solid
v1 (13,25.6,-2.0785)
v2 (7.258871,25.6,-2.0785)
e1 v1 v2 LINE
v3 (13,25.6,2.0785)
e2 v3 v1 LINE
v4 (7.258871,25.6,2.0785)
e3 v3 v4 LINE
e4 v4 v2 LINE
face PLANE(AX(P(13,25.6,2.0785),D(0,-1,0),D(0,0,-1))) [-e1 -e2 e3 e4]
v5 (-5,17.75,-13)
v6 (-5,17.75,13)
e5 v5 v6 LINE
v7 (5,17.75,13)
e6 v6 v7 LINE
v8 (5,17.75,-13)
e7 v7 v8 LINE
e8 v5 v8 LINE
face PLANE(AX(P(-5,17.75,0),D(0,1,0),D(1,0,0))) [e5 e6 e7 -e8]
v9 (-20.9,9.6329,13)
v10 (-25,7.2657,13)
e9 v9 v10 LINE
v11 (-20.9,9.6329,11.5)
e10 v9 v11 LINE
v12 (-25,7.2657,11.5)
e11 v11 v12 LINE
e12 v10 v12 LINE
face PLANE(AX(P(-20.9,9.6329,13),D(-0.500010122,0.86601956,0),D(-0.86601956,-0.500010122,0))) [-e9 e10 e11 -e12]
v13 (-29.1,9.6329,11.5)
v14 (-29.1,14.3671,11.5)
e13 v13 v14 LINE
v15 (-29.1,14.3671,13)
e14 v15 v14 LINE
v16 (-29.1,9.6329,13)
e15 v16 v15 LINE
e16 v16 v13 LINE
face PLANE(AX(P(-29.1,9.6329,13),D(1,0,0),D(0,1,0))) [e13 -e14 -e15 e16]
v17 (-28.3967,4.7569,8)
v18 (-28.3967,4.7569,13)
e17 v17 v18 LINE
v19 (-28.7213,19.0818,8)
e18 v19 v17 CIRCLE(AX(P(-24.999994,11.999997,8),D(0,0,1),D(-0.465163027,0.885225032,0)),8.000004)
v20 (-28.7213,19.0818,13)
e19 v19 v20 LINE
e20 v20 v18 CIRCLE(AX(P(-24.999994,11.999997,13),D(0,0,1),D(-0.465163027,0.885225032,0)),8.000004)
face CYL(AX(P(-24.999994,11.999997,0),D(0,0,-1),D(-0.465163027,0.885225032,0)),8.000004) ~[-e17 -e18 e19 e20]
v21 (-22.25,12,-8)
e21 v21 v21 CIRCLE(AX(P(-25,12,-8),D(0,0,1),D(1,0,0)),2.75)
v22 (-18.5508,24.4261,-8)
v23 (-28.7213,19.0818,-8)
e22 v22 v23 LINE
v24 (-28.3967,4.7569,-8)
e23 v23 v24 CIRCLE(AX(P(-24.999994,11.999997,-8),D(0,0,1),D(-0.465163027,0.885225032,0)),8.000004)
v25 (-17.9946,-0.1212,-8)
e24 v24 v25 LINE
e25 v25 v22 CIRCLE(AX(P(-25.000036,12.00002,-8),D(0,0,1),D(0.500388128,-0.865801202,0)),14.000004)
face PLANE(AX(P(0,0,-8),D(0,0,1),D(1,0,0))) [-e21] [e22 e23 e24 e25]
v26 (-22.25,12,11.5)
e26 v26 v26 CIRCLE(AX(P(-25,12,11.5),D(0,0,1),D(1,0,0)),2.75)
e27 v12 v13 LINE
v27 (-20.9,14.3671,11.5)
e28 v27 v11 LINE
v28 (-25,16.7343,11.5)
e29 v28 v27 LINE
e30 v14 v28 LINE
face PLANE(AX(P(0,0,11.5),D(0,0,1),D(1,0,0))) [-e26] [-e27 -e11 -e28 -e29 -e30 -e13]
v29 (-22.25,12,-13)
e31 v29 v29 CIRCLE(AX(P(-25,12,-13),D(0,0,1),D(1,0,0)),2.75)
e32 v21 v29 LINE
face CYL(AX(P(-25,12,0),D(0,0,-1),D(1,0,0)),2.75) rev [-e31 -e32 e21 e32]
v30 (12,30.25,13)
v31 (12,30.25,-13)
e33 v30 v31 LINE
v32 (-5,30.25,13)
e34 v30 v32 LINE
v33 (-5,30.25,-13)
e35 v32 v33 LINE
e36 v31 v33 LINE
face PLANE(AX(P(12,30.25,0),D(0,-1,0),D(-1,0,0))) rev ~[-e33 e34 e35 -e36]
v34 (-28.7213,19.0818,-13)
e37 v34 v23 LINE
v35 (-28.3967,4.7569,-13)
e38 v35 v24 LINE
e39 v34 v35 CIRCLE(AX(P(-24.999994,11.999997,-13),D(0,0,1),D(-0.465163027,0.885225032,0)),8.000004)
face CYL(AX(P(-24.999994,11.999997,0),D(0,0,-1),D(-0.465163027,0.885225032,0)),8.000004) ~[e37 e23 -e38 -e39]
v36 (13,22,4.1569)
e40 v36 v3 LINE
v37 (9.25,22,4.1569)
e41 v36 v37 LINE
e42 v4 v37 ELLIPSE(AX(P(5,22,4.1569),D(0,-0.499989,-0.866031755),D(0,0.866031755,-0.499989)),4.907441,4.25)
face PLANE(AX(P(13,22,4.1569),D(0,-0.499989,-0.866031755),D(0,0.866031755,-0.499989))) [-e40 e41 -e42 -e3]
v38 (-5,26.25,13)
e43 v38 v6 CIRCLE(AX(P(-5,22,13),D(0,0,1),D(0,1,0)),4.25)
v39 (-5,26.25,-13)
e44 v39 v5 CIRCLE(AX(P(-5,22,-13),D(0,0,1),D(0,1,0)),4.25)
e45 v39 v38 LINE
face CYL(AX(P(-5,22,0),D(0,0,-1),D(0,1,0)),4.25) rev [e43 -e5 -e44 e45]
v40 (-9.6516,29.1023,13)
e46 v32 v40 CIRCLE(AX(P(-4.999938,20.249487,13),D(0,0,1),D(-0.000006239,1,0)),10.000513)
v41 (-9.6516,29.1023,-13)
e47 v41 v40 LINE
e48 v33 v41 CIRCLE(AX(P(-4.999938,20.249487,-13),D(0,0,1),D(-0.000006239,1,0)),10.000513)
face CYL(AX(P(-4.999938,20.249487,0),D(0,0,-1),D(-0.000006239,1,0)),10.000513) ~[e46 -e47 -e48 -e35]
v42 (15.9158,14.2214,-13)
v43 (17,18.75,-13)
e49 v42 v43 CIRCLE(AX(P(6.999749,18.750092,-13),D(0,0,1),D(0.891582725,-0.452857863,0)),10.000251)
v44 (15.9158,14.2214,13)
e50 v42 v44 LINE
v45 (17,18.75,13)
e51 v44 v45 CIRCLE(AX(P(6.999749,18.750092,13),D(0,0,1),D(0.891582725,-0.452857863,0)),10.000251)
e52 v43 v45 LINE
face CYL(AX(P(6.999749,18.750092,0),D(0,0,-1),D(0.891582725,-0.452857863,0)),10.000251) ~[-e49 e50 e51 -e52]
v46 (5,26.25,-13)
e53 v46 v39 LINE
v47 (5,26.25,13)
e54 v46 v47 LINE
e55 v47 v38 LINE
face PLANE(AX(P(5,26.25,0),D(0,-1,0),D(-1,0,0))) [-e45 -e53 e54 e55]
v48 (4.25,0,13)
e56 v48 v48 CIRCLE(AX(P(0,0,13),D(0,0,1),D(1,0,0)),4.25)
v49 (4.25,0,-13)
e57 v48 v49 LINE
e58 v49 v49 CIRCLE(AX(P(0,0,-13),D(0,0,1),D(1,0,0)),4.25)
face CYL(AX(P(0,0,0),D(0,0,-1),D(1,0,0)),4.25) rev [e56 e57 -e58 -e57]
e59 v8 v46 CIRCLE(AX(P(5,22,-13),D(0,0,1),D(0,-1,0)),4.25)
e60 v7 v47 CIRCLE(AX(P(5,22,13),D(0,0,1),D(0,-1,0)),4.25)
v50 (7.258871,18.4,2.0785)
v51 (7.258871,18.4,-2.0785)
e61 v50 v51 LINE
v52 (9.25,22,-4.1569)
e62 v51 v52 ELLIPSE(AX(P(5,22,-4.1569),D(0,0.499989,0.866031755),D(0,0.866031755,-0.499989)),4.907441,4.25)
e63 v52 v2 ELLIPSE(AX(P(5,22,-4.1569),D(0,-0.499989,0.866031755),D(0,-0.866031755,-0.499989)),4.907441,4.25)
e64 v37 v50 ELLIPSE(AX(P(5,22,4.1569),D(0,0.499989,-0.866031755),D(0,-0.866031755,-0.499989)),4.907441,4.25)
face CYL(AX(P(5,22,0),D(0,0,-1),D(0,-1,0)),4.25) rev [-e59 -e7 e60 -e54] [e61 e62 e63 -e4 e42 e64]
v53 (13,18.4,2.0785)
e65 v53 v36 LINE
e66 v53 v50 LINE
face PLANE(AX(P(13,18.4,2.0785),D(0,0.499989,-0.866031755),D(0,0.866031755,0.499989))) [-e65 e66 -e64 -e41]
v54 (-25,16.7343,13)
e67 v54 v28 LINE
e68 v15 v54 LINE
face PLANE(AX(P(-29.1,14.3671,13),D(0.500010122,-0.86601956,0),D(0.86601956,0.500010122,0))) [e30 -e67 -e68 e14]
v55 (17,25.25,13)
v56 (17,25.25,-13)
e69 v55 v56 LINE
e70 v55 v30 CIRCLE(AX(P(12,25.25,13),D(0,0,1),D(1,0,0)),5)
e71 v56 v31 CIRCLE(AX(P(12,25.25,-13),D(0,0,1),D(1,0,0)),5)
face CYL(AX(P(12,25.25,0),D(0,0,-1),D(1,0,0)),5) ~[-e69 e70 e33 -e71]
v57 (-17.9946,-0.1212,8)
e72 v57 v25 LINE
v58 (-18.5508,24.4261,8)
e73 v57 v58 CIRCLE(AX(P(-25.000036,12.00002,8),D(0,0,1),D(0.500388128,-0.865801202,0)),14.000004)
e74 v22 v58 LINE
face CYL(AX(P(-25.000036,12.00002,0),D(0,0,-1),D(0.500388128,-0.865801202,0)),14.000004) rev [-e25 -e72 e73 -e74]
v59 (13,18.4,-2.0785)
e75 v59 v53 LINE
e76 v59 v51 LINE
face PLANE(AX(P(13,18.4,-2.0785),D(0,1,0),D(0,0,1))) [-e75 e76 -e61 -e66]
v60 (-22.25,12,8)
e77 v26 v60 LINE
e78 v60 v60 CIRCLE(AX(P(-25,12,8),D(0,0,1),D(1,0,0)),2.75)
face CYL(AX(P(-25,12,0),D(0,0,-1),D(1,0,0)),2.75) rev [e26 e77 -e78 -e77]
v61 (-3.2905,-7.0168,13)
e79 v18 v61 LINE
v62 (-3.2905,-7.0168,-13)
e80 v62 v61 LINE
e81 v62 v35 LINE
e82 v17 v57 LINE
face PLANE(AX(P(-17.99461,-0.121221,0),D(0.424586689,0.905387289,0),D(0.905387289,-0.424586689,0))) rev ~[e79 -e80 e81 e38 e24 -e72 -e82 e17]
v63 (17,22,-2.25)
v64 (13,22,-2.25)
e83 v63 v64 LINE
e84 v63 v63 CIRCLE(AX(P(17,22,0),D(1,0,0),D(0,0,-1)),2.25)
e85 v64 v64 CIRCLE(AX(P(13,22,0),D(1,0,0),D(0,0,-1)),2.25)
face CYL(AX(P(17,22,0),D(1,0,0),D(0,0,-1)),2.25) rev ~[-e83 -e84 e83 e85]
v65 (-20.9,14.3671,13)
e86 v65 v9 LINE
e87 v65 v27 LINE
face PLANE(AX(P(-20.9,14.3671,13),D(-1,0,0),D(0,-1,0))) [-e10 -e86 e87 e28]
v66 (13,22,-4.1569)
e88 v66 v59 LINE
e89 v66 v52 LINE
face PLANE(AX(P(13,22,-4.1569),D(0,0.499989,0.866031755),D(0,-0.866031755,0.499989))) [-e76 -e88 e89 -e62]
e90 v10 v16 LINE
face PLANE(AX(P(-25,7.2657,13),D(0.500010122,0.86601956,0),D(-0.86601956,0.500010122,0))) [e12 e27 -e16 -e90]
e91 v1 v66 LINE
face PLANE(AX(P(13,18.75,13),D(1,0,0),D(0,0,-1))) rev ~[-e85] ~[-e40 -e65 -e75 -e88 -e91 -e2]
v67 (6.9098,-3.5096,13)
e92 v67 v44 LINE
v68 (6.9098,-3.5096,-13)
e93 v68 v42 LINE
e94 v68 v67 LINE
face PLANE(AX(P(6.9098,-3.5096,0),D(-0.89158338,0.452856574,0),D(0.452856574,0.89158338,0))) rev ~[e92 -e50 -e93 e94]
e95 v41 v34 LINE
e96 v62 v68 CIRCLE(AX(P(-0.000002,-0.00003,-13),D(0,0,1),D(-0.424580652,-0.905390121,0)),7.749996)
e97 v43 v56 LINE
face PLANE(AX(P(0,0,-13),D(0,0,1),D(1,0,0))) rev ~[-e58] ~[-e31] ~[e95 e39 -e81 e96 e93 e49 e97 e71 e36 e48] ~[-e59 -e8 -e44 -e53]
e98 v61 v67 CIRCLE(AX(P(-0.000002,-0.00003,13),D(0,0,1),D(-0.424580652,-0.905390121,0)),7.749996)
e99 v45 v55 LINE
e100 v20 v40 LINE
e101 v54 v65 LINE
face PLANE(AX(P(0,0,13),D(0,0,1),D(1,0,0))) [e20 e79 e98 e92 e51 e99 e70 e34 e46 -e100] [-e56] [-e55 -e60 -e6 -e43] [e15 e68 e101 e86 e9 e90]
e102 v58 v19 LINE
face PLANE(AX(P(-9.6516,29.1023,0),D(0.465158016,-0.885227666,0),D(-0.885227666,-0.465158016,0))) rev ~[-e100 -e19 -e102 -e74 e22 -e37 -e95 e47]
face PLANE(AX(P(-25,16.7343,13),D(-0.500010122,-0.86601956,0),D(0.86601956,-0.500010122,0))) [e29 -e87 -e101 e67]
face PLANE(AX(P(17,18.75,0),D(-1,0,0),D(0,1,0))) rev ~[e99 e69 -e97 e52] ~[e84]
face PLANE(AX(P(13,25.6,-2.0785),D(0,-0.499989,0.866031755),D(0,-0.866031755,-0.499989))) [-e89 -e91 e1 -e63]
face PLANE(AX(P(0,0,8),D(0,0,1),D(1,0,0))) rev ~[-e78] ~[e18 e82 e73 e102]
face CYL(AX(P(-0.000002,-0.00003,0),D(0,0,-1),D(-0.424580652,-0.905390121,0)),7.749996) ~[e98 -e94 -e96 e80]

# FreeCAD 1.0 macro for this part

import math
import FreeCAD as App
import Part
import Sketcher
Q = App.Units.Quantity

doc = App.newDocument("Part")
body = doc.addObject("PartDesign::Body", "Body")

# Sketch on XY plane
sketch1 = body.newObject("Sketcher::SketchObject", "Sketch")
sketch1.AttachmentSupport = (doc.getObject("XY_Plane"), [""])
sketch1.MapMode = "FlatFace"
sketch1.addGeometry([
    Part.ArcOfCircle(Part.Circle(App.Vector(-5, 20.2, 0), App.Vector(0, 0, 1), 10), math.radians(90), math.radians(118)),  # 0
    Part.LineSegment(App.Vector(-9.7, 29.1, 0), App.Vector(-28.7, 19.1, 0)),  # 1
    Part.ArcOfCircle(Part.Circle(App.Vector(-25, 12, 0), App.Vector(0, 0, 1), 8), math.radians(118), math.radians(245)),  # 2
    Part.LineSegment(App.Vector(-28.4, 4.8, 0), App.Vector(-3.3, -7, 0)),  # 3
    Part.ArcOfCircle(Part.Circle(App.Vector(0, 0, 0), App.Vector(0, 0, 1), 7.8), math.radians(-115), math.radians(-27)),  # 4
    Part.LineSegment(App.Vector(6.9, -3.5, 0), App.Vector(15.9, 14.2, 0)),  # 5
    Part.ArcOfCircle(Part.Circle(App.Vector(7, 18.8, 0), App.Vector(0, 0, 1), 10), math.radians(-27), math.radians(0)),  # 6
    Part.LineSegment(App.Vector(17, 18.8, 0), App.Vector(17, 25.2, 0)),  # 7
    Part.ArcOfCircle(Part.Circle(App.Vector(12, 25.2, 0), App.Vector(0, 0, 1), 5), math.radians(0), math.radians(90)),  # 8
    Part.LineSegment(App.Vector(12, 30.2, 0), App.Vector(-5, 30.2, 0)),  # 9
    Part.Circle(App.Vector(0, 0, 0), App.Vector(0, 0, 1), 4.2),  # 10
    Part.LineSegment(App.Vector(5, 17.8, 0), App.Vector(-5, 17.8, 0)),  # 11
    Part.ArcOfCircle(Part.Circle(App.Vector(-5, 22, 0), App.Vector(0, 0, 1), 4.2), math.radians(90), math.radians(270)),  # 12
    Part.LineSegment(App.Vector(-5, 26.2, 0), App.Vector(5, 26.2, 0)),  # 13
    Part.ArcOfCircle(Part.Circle(App.Vector(5, 22, 0), App.Vector(0, 0, 1), 4.2), math.radians(-90), math.radians(90)),  # 14
    Part.Circle(App.Vector(-25, 12, 0), App.Vector(0, 0, 1), 2.8),  # 15
], False)
sketch1.addConstraint([
    Sketcher.Constraint("Tangent", 0, 2, 1, 1),
    Sketcher.Constraint("Tangent", 1, 2, 2, 1),
    Sketcher.Constraint("Tangent", 2, 2, 3, 1),
    Sketcher.Constraint("Tangent", 3, 2, 4, 1),
    Sketcher.Constraint("Tangent", 4, 2, 5, 1),
    Sketcher.Constraint("Tangent", 5, 2, 6, 1),
    Sketcher.Constraint("Tangent", 6, 2, 7, 1),
    Sketcher.Constraint("Tangent", 7, 2, 8, 1),
    Sketcher.Constraint("Tangent", 8, 2, 9, 1),
    Sketcher.Constraint("Tangent", 9, 2, 0, 1),
    Sketcher.Constraint("Tangent", 11, 2, 12, 2),
    Sketcher.Constraint("Tangent", 12, 1, 13, 1),
    Sketcher.Constraint("Tangent", 13, 2, 14, 2),
    Sketcher.Constraint("Tangent", 14, 1, 11, 1),
    Sketcher.Constraint("Vertical", 7),
    Sketcher.Constraint("Horizontal", 9),
    Sketcher.Constraint("Horizontal", 11),
    Sketcher.Constraint("Horizontal", 13),
    Sketcher.Constraint("Coincident", 4, 3, -1, 1),
    Sketcher.Constraint("Coincident", 10, 3, -1, 1),
    Sketcher.Constraint("Coincident", 15, 3, 2, 3),
    Sketcher.Constraint("Equal", 0, 6),
    Sketcher.Constraint("Equal", 10, 12),
    Sketcher.Constraint("Vertical", 0, 3, 12, 3),
    Sketcher.Constraint("Radius", 0, 10.0),
    Sketcher.Constraint("Radius", 2, 8.0),
    Sketcher.Constraint("Radius", 8, 5.0),
    Sketcher.Constraint("Diameter", 10, 8.5),
    Sketcher.Constraint("Diameter", 15, 5.5),
    Sketcher.Constraint("DistanceX", 11, 2, 11, 1, 10.0),
    Sketcher.Constraint("Radius", 4, 7.75),
    Sketcher.Constraint("DistanceX", 0, 3, -1, 1, 5.0),
    Sketcher.Constraint("DistanceY", -1, 1, 2, 3, 12.0),
    Sketcher.Constraint("DistanceX", -1, 1, 8, 3, 12.0),
    Sketcher.Constraint("DistanceY", -1, 1, 12, 3, 22.0),
    Sketcher.Constraint("DistanceX", 2, 3, 0, 3, 20.0),
    Sketcher.Constraint("DistanceY", 12, 1, 9, 2, 4.0),
    Sketcher.Constraint("DistanceY", 7, 1, 7, 2, 6.5),
])
pad1 = body.newObject("PartDesign::Pad", "Pad")
pad1.Profile = sketch1
pad1.Length = 26
pad1.Midplane = True

# Sketch on XY plane
sketch2 = body.newObject("Sketcher::SketchObject", "Sketch001")
sketch2.AttachmentSupport = (doc.getObject("XY_Plane"), [""])
sketch2.MapMode = "FlatFace"
sketch2.addGeometry([
    Part.ArcOfCircle(Part.Circle(App.Vector(-25, 12, 0), App.Vector(0, 0, 1), 14), math.radians(-60), math.radians(63)),  # 0
    Part.LineSegment(App.Vector(-18.6, 24.4, 0), App.Vector(-28.7, 19.1, 0)),  # 1
    Part.ArcOfCircle(Part.Circle(App.Vector(-25, 12, 0), App.Vector(0, 0, 1), 8), math.radians(118), math.radians(245)),  # 2
    Part.LineSegment(App.Vector(-28.4, 4.8, 0), App.Vector(-18, -0.1, 0)),  # 3
    Part.Circle(App.Vector(-25, 12, 0), App.Vector(0, 0, 1), 2.8),  # 4
], False)
sketch2.addConstraint([
    Sketcher.Constraint("Coincident", 0, 2, 1, 1),
    Sketcher.Constraint("Tangent", 1, 2, 2, 1),
    Sketcher.Constraint("Tangent", 2, 2, 3, 1),
    Sketcher.Constraint("Coincident", 3, 2, 0, 1),
    Sketcher.Constraint("Coincident", 2, 3, 0, 3),
    Sketcher.Constraint("Coincident", 4, 3, 0, 3),
    Sketcher.Constraint("Radius", 0, 14.0),
    Sketcher.Constraint("Radius", 2, 8.0),
    Sketcher.Constraint("Diameter", 4, 5.5),
    Sketcher.Constraint("DistanceY", -1, 1, 0, 3, 12.0),
    Sketcher.Constraint("DistanceX", 0, 3, -1, 1, 25.0),
    Sketcher.Constraint("Angle", 1, Q("-152.2796 deg")),
    Sketcher.Constraint("DistanceY", -1, 1, 2, 2, 4.757),
])
pocket1 = body.newObject("PartDesign::Pocket", "Pocket")
pocket1.Profile = sketch2
pocket1.Length = 16
pocket1.Midplane = True

# Sketch on XY plane
sketch3 = body.newObject("Sketcher::SketchObject", "Sketch002")
sketch3.AttachmentSupport = (doc.getObject("XY_Plane"), [""])
sketch3.MapMode = "FlatFace"
sketch3.AttachmentOffset = App.Placement(App.Vector(0, 0, 13), App.Rotation())
sketch3.addGeometry([
    Part.LineSegment(App.Vector(-25, 16.7, 0), App.Vector(-29.1, 14.4, 0)),  # 0
    Part.LineSegment(App.Vector(-29.1, 14.4, 0), App.Vector(-29.1, 9.6, 0)),  # 1
    Part.LineSegment(App.Vector(-29.1, 9.6, 0), App.Vector(-25, 7.3, 0)),  # 2
    Part.LineSegment(App.Vector(-25, 7.3, 0), App.Vector(-20.9, 9.6, 0)),  # 3
    Part.LineSegment(App.Vector(-20.9, 9.6, 0), App.Vector(-20.9, 14.4, 0)),  # 4
    Part.LineSegment(App.Vector(-20.9, 14.4, 0), App.Vector(-25, 16.7, 0)),  # 5
    Part.Circle(App.Vector(-25, 12, 0), App.Vector(0, 0, 1), 2.8),  # 6
], False)
sketch3.addConstraint([
    Sketcher.Constraint("Coincident", 0, 2, 1, 1),
    Sketcher.Constraint("Coincident", 1, 2, 2, 1),
    Sketcher.Constraint("Coincident", 2, 2, 3, 1),
    Sketcher.Constraint("Coincident", 3, 2, 4, 1),
    Sketcher.Constraint("Coincident", 4, 2, 5, 1),
    Sketcher.Constraint("Coincident", 5, 2, 0, 1),
    Sketcher.Constraint("Vertical", 1),
    Sketcher.Constraint("Vertical", 4),
    Sketcher.Constraint("Parallel", 0, 3),
    Sketcher.Constraint("Parallel", 2, 5),
    Sketcher.Constraint("Horizontal", 1, 2, 3, 2),
    Sketcher.Constraint("Horizontal", 0, 2, 4, 2),
    Sketcher.Constraint("Vertical", 6, 3, 2, 2),
    Sketcher.Constraint("Vertical", 2, 2, 5, 2),
    Sketcher.Constraint("Diameter", 6, 5.5),
    Sketcher.Constraint("Angle", 0, Q("-149.9993 deg")),
    Sketcher.Constraint("DistanceX", 6, 3, -1, 1, 25.0),
    Sketcher.Constraint("DistanceY", -1, 1, 6, 3, 12.0),
    Sketcher.Constraint("DistanceX", 0, 2, -1, 1, 29.1),
    Sketcher.Constraint("DistanceY", 1, 2, 1, 1, 4.7342),
    Sketcher.Constraint("DistanceY", -1, 1, 0, 2, 14.367),
])
pocket2 = body.newObject("PartDesign::Pocket", "Pocket001")
pocket2.Profile = sketch3
pocket2.Length = 1.5

# Sketch on YZ plane
sketch4 = body.newObject("Sketcher::SketchObject", "Sketch003")
sketch4.AttachmentSupport = (doc.getObject("YZ_Plane"), [""])
sketch4.MapMode = "FlatFace"
sketch4.AttachmentOffset = App.Placement(App.Vector(0, 0, 17), App.Rotation())
sketch4.addGeometry(Part.Circle(App.Vector(22, 0, 0), App.Vector(0, 0, 1), 2.2), False)
sketch4.addConstraint([
    Sketcher.Constraint("PointOnObject", 0, 3, -1),
    Sketcher.Constraint("Diameter", 0, 4.5),
    Sketcher.Constraint("DistanceX", -1, 1, 0, 3, 22.0),
])
pocket3 = body.newObject("PartDesign::Pocket", "Pocket002")
pocket3.Profile = sketch4
pocket3.Type = "UpToFirst"

# Sketch on YZ plane
sketch5 = body.newObject("Sketcher::SketchObject", "Sketch004")
sketch5.AttachmentSupport = (doc.getObject("YZ_Plane"), [""])
sketch5.MapMode = "FlatFace"
sketch5.AttachmentOffset = App.Placement(App.Vector(0, 0, 13), App.Rotation())
sketch5.addGeometry([
    Part.LineSegment(App.Vector(22, 4.2, 0), App.Vector(18.4, 2.1, 0)),  # 0
    Part.LineSegment(App.Vector(18.4, 2.1, 0), App.Vector(18.4, -2.1, 0)),  # 1
    Part.LineSegment(App.Vector(18.4, -2.1, 0), App.Vector(22, -4.2, 0)),  # 2
    Part.LineSegment(App.Vector(22, -4.2, 0), App.Vector(25.6, -2.1, 0)),  # 3
    Part.LineSegment(App.Vector(25.6, -2.1, 0), App.Vector(25.6, 2.1, 0)),  # 4
    Part.LineSegment(App.Vector(25.6, 2.1, 0), App.Vector(22, 4.2, 0)),  # 5
], False)
sketch5.addConstraint([
    Sketcher.Constraint("Coincident", 0, 2, 1, 1),
    Sketcher.Constraint("Coincident", 1, 2, 2, 1),
    Sketcher.Constraint("Coincident", 2, 2, 3, 1),
    Sketcher.Constraint("Coincident", 3, 2, 4, 1),
    Sketcher.Constraint("Coincident", 4, 2, 5, 1),
    Sketcher.Constraint("Coincident", 5, 2, 0, 1),
    Sketcher.Constraint("Vertical", 1),
    Sketcher.Constraint("Vertical", 4),
    Sketcher.Constraint("Symmetric", 2, 2, 5, 2, -1),
    Sketcher.Constraint("Parallel", 0, 3),
    Sketcher.Constraint("Parallel", 2, 5),
    Sketcher.Constraint("Horizontal", 1, 2, 3, 2),
    Sketcher.Constraint("Horizontal", 0, 2, 4, 2),
    Sketcher.Constraint("Angle", 0, Q("-150.0007 deg")),
    Sketcher.Constraint("DistanceX", -1, 1, 2, 2, 22.0),
    Sketcher.Constraint("DistanceX", -1, 1, 0, 2, 18.4),
    Sketcher.Constraint("DistanceY", 1, 2, 1, 1, 4.157),
])
pocket4 = body.newObject("PartDesign::Pocket", "Pocket003")
pocket4.Profile = sketch5
pocket4.Type = "UpToFirst"

doc.recompute()
